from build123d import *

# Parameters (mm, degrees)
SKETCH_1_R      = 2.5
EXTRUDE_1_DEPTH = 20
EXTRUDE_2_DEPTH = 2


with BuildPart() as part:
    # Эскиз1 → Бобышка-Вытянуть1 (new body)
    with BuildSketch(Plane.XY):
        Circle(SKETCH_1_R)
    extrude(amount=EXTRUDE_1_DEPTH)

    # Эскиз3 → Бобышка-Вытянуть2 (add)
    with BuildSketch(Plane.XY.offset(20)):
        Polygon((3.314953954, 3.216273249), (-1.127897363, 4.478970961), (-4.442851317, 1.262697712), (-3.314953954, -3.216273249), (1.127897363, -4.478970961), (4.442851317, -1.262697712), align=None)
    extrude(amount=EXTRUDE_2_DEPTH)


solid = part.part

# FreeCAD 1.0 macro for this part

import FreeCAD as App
import Part
import Sketcher
from FreeCAD import Vector
Q = App.Units.Quantity

doc = App.newDocument("Part")
params = doc.addObject("Spreadsheet::Sheet", "Params")
for row, (alias, value) in enumerate([
    ("sketch1_diameter", "5 mm"),
    ("pad1_length", "20 mm"),
    ("pad2_length", "2 mm"),
], start=1):
    params.set(f"A{row}", alias)
    params.set(f"B{row}", "=" + value)
    params.setAlias(f"B{row}", alias)

body = doc.addObject("PartDesign::Body", "Body")

# Sketch on XY plane
sketch1 = body.newObject("Sketcher::SketchObject", "Sketch")
sketch1.AttachmentSupport = (doc.getObject("XY_Plane"), [""])
sketch1.MapMode = "FlatFace"
sketch1.addGeometry(Part.Circle(Vector(0, 0, 0), Vector(0, 0, 1), 2.5), False)
sketch1.addConstraint([
    Sketcher.Constraint("Coincident", 0, 3, -1, 1),
    Sketcher.Constraint("Diameter", 0, Q("5 mm")),
])
sketch1.setExpression("Constraints[1]", "Params.sketch1_diameter")
pad1 = body.newObject("PartDesign::Pad", "Pad")
pad1.Profile = sketch1
pad1.setExpression("Length", "Params.pad1_length")

# Sketch on XY plane
sketch2 = body.newObject("Sketcher::SketchObject", "Sketch001")
sketch2.AttachmentSupport = (doc.getObject("XY_Plane"), [""])
sketch2.MapMode = "FlatFace"
sketch2.AttachmentOffset = App.Placement(Vector(0, 0, 20), App.Rotation())
sketch2.addGeometry([
    Part.LineSegment(Vector(3.3, 3.2, 0), Vector(-1.1, 4.5, 0)),  # 0
    Part.LineSegment(Vector(-1.1, 4.5, 0), Vector(-4.4, 1.3, 0)),  # 1
    Part.LineSegment(Vector(-4.4, 1.3, 0), Vector(-3.3, -3.2, 0)),  # 2
    Part.LineSegment(Vector(-3.3, -3.2, 0), Vector(1.1, -4.5, 0)),  # 3
    Part.LineSegment(Vector(1.1, -4.5, 0), Vector(4.4, -1.3, 0)),  # 4
    Part.LineSegment(Vector(4.4, -1.3, 0), Vector(3.3, 3.2, 0)),  # 5
], False)
sketch2.addConstraint([
    Sketcher.Constraint("Coincident", 0, 2, 1, 1),
    Sketcher.Constraint("Coincident", 1, 2, 2, 1),
    Sketcher.Constraint("Coincident", 2, 2, 3, 1),
    Sketcher.Constraint("Coincident", 3, 2, 4, 1),
    Sketcher.Constraint("Coincident", 4, 2, 5, 1),
    Sketcher.Constraint("Coincident", 5, 2, 0, 1),
    Sketcher.Constraint("Symmetric", 0, 2, 3, 2, -1, 1),
    Sketcher.Constraint("Symmetric", 1, 2, 4, 2, -1, 1),
    Sketcher.Constraint("Symmetric", 2, 2, 5, 2, -1, 1),
    Sketcher.Constraint("Equal", 0, 1),
    Sketcher.Constraint("Equal", 1, 2),
    Sketcher.Constraint("DistanceY", -1, 1, 0, 2, Q("4.478971 mm")),
    Sketcher.Constraint("DistanceX", 1, 2, -1, 1, Q("4.442851 mm")),
    Sketcher.Constraint("DistanceY", 2, 2, 1, 2, Q("4.478971 mm")),
    Sketcher.Constraint("DistanceX", 2, 2, 3, 2, Q("4.442851 mm")),
])
pad2 = body.newObject("PartDesign::Pad", "Pad001")
pad2.Profile = sketch2
pad2.setExpression("Length", "Params.pad2_length")

doc.recompute()
